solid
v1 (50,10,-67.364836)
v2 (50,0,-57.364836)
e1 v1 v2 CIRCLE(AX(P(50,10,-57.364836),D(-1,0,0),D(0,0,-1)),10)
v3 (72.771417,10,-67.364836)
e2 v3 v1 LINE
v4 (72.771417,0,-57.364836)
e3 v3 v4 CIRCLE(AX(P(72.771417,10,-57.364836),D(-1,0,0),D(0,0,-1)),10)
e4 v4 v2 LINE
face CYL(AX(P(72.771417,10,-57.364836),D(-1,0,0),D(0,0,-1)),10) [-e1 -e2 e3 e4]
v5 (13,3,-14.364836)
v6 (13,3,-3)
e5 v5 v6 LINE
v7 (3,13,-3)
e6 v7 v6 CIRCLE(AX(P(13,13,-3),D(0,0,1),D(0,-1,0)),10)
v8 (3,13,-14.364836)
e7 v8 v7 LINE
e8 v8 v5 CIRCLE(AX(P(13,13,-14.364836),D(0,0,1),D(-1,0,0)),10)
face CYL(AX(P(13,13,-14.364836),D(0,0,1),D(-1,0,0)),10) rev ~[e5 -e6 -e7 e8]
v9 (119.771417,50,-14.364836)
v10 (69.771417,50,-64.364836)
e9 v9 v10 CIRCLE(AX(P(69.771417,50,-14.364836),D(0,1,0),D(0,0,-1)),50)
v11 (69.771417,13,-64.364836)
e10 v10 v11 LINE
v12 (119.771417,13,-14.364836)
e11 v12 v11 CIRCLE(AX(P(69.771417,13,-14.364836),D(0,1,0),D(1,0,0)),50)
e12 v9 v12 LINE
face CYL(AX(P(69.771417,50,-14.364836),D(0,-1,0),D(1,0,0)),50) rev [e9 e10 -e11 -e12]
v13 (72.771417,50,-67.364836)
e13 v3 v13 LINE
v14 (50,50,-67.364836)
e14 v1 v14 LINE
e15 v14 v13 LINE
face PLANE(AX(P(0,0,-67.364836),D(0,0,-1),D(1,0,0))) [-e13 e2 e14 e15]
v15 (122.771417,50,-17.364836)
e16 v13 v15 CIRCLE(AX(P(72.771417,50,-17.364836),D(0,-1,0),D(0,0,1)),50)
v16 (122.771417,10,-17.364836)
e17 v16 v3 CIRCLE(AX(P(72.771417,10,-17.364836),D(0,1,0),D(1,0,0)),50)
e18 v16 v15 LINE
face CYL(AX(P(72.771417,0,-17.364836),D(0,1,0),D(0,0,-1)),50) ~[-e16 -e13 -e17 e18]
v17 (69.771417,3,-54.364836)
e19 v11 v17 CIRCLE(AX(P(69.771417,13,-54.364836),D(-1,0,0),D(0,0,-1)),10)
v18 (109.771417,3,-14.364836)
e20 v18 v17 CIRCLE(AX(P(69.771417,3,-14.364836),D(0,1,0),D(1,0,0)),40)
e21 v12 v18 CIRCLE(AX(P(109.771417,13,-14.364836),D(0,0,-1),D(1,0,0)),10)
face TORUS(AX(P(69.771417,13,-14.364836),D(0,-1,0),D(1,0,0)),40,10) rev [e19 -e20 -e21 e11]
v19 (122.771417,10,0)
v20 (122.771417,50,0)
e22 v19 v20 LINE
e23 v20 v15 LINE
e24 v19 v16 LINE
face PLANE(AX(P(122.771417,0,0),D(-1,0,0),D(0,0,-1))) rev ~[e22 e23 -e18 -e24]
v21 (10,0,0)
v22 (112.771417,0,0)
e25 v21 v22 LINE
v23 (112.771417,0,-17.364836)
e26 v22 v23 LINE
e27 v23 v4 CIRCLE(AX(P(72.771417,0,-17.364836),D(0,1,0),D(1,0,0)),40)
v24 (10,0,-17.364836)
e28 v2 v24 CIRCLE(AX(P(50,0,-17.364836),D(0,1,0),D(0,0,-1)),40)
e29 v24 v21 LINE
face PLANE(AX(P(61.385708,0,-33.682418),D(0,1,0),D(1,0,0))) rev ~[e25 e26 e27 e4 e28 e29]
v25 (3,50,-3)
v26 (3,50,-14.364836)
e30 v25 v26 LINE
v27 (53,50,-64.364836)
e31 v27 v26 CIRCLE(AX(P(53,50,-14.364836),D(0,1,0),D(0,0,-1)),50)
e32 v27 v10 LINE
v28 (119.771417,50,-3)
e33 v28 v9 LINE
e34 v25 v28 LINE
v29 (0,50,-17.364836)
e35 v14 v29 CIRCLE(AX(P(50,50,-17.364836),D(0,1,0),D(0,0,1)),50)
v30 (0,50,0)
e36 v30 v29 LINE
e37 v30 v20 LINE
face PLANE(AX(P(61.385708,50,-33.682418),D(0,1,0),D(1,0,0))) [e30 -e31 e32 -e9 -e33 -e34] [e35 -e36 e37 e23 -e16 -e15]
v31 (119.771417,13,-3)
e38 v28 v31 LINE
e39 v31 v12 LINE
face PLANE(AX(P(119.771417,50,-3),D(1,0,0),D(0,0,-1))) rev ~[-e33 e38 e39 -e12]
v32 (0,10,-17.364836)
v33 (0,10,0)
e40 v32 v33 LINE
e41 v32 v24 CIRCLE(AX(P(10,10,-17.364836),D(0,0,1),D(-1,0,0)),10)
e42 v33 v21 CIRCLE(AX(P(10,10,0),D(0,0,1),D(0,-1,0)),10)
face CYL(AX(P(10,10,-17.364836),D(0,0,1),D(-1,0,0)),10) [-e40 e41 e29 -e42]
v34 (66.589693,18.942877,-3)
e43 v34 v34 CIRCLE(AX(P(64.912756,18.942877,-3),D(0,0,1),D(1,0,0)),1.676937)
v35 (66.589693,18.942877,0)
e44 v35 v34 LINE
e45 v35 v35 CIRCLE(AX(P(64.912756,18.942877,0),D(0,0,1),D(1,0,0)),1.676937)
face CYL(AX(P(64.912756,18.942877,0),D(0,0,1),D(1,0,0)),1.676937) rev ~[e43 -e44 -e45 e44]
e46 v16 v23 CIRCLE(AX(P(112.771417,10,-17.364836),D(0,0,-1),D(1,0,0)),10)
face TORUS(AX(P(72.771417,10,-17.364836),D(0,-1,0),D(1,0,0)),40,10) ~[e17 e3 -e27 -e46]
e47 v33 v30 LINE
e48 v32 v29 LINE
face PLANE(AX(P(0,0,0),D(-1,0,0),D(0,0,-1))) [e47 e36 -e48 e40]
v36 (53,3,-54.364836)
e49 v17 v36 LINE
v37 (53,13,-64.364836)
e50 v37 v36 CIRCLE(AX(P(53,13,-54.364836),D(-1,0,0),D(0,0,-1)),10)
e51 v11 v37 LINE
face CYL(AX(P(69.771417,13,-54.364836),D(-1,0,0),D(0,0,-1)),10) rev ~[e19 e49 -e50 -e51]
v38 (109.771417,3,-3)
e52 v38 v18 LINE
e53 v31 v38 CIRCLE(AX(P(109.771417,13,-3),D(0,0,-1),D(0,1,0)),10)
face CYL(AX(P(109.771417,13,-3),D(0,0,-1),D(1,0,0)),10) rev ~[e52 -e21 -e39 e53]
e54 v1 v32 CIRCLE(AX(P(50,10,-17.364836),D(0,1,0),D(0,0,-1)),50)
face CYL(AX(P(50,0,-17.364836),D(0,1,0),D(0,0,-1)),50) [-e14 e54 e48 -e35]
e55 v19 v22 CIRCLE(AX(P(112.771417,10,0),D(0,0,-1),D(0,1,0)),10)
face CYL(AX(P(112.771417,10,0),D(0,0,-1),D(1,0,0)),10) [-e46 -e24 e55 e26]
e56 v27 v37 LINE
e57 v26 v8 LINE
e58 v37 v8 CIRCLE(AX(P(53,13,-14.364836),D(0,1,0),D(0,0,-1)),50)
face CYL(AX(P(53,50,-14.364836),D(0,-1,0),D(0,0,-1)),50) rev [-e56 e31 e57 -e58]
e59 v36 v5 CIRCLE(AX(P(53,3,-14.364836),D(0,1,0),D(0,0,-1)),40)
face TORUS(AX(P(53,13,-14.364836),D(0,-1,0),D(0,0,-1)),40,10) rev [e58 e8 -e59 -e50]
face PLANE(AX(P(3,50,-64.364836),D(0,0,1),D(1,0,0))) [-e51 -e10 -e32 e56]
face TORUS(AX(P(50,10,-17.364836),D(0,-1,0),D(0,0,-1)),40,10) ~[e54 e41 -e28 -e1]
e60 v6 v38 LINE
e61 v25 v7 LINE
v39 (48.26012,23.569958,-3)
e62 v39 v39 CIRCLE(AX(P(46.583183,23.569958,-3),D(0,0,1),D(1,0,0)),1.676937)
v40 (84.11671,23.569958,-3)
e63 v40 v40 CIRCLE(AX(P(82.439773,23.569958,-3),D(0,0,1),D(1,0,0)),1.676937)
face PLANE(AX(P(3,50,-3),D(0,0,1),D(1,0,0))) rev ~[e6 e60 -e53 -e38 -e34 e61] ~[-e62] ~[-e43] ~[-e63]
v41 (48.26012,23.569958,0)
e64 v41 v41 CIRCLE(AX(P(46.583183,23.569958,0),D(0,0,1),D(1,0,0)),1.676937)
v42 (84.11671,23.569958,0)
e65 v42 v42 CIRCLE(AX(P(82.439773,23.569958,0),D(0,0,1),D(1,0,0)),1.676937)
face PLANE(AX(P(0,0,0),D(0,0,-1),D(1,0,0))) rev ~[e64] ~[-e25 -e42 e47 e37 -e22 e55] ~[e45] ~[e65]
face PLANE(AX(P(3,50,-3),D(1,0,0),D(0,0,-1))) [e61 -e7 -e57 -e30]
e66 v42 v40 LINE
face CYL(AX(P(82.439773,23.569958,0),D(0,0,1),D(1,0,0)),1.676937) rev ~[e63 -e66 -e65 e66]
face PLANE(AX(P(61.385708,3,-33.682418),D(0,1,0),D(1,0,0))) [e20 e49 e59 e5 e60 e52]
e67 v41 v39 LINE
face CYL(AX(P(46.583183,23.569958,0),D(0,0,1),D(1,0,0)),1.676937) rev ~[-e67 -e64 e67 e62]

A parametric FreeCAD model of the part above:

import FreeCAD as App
import Part
import Sketcher
from FreeCAD import Vector
Q = App.Units.Quantity


def edges_at(feature, points):
    """Names of the edges that pass closest to the given points."""
    edges = feature.Shape.Edges
    near = lambda p: min(range(len(edges)), key=lambda i: edges[i].distToShape(Part.Vertex(*p))[0])
    return sorted({f"Edge{near(p) + 1}" for p in points})

doc = App.newDocument("Part")
body = doc.addObject("PartDesign::Body", "Body")

# Sketch on XZ plane
sketch1 = body.newObject("Sketcher::SketchObject", "Sketch")
sketch1.AttachmentSupport = (doc.getObject("XZ_Plane"), [""])
sketch1.MapMode = "FlatFace"
sketch1.addGeometry([
    Part.LineSegment(Vector(0, -67, 0), Vector(0, 0, 0)),
    Part.LineSegment(Vector(0, 0, 0), Vector(123, 0, 0)),
    Part.LineSegment(Vector(123, 0, 0), Vector(123, -67, 0)),
    Part.LineSegment(Vector(123, -67, 0), Vector(0, -67, 0)),
], False)
sketch1.addConstraint([
    Sketcher.Constraint("Coincident", 0, 2, 1, 1),
    Sketcher.Constraint("Coincident", 1, 2, 2, 1),
    Sketcher.Constraint("Coincident", 2, 2, 3, 1),
    Sketcher.Constraint("Coincident", 3, 2, 0, 1),
    Sketcher.Constraint("Vertical", 0),
    Sketcher.Constraint("Horizontal", 1),
    Sketcher.Constraint("Vertical", 2),
    Sketcher.Constraint("Horizontal", 3),
    Sketcher.Constraint("Coincident", 0, 2, -1, 1),
    Sketcher.Constraint("DistanceX", 1, 1, 1, 2, Q("122.771417 mm")),
    Sketcher.Constraint("DistanceY", 0, 1, 0, 2, Q("67.364836 mm")),
])
pad1 = body.newObject("PartDesign::Pad", "Pad")
pad1.Profile = sketch1
pad1.Length = 50
pad1.Reversed = True

# Sketch on XZ plane
sketch2 = body.newObject("Sketcher::SketchObject", "Sketch001")
sketch2.AttachmentSupport = (doc.getObject("XZ_Plane"), [""])
sketch2.MapMode = "FlatFace"
sketch2.AttachmentOffset = App.Placement(Vector(0, 0, -50), App.Rotation())
sketch2.addGeometry([
    Part.LineSegment(Vector(3, -64, 0), Vector(3, -3, 0)),
    Part.LineSegment(Vector(3, -3, 0), Vector(120, -3, 0)),
    Part.LineSegment(Vector(120, -3, 0), Vector(120, -64, 0)),
    Part.LineSegment(Vector(120, -64, 0), Vector(3, -64, 0)),
], False)
sketch2.addConstraint([
    Sketcher.Constraint("Coincident", 0, 2, 1, 1),
    Sketcher.Constraint("Coincident", 1, 2, 2, 1),
    Sketcher.Constraint("Coincident", 2, 2, 3, 1),
    Sketcher.Constraint("Coincident", 3, 2, 0, 1),
    Sketcher.Constraint("Vertical", 0),
    Sketcher.Constraint("Horizontal", 1),
    Sketcher.Constraint("Vertical", 2),
    Sketcher.Constraint("Horizontal", 3),
    Sketcher.Constraint("DistanceX", -1, 1, 0, 2, Q("3 mm")),
    Sketcher.Constraint("DistanceY", 0, 2, -1, 1, Q("3 mm")),
    Sketcher.Constraint("DistanceX", 1, 1, 1, 2, Q("116.771417 mm")),
    Sketcher.Constraint("DistanceY", 0, 1, 0, 2, Q("61.364836 mm")),
])
pocket1 = body.newObject("PartDesign::Pocket", "Pocket")
pocket1.Profile = sketch2
pocket1.Length = 47
pocket1.Reversed = True

# Sketch on XY plane
sketch3 = body.newObject("Sketcher::SketchObject", "Sketch002")
sketch3.AttachmentSupport = (doc.getObject("XY_Plane"), [""])
sketch3.MapMode = "FlatFace"
sketch3.addGeometry([
    Part.Circle(Vector(46.6, 23.6, 0), Vector(0, 0, 1), 1.7),
    Part.Circle(Vector(64.9, 18.9, 0), Vector(0, 0, 1), 1.7),
    Part.Circle(Vector(82.4, 23.6, 0), Vector(0, 0, 1), 1.7),
], False)
sketch3.addConstraint([
    Sketcher.Constraint("Equal", 0, 1),
    Sketcher.Constraint("Equal", 1, 2),
    Sketcher.Constraint("Horizontal", 0, 3, 2, 3),
    Sketcher.Constraint("Diameter", 0, Q("3.353874 mm")),
    Sketcher.Constraint("DistanceY", 1, 3, 0, 3, Q("4.627081 mm")),
    Sketcher.Constraint("DistanceX", 0, 3, 2, 3, Q("35.856591 mm")),
    Sketcher.Constraint("DistanceX", -1, 1, 0, 3, Q("46.583183 mm")),
    Sketcher.Constraint("DistanceY", -1, 1, 0, 3, Q("23.569958 mm")),
    Sketcher.Constraint("DistanceX", -1, 1, 1, 3, Q("64.912756 mm")),
])
pocket2 = body.newObject("PartDesign::Pocket", "Pocket001")
pocket2.Profile = sketch3
pocket2.Length = 3
doc.recompute()

fillet = body.newObject("PartDesign::Fillet", "Fillet")
fillet.Base = (pocket2, edges_at(pocket2, [(119.771, 26.5, -64.365)]))
fillet.Radius = 50
doc.recompute()

fillet2 = body.newObject("PartDesign::Fillet", "Fillet001")
fillet2.Base = (fillet, edges_at(fillet, [(122.771, 25, -67.365)]))
fillet2.Radius = 50
doc.recompute()

fillet3 = body.newObject("PartDesign::Fillet", "Fillet002")
fillet3.Base = (fillet2, edges_at(fillet2, [(3, 26.5, -64.365)]))
fillet3.Radius = 50
doc.recompute()

fillet4 = body.newObject("PartDesign::Fillet", "Fillet003")
fillet4.Base = (fillet3, edges_at(fillet3, [(0, 25, -67.365)]))
fillet4.Radius = 50
doc.recompute()

fillet5 = body.newObject("PartDesign::Fillet", "Fillet004")
fillet5.Base = (fillet4, edges_at(fillet4, [
    (119.771, 3, -8.682),
    (61.386, 3, -64.365),
    (105.127, 3, -49.72),
    (3, 3, -8.682),
    (17.645, 3, -49.72),
]))
fillet5.Radius = 10
doc.recompute()

fillet6 = body.newObject("PartDesign::Fillet", "Fillet005")
fillet6.Base = (fillet5, edges_at(fillet5, [
    (122.771, 0, -8.682),
    (61.386, 0, -67.365),
    (108.127, 0, -52.72),
    (0, 0, -8.682),
    (14.645, 0, -52.72),
]))
fillet6.Radius = 10

doc.recompute()
